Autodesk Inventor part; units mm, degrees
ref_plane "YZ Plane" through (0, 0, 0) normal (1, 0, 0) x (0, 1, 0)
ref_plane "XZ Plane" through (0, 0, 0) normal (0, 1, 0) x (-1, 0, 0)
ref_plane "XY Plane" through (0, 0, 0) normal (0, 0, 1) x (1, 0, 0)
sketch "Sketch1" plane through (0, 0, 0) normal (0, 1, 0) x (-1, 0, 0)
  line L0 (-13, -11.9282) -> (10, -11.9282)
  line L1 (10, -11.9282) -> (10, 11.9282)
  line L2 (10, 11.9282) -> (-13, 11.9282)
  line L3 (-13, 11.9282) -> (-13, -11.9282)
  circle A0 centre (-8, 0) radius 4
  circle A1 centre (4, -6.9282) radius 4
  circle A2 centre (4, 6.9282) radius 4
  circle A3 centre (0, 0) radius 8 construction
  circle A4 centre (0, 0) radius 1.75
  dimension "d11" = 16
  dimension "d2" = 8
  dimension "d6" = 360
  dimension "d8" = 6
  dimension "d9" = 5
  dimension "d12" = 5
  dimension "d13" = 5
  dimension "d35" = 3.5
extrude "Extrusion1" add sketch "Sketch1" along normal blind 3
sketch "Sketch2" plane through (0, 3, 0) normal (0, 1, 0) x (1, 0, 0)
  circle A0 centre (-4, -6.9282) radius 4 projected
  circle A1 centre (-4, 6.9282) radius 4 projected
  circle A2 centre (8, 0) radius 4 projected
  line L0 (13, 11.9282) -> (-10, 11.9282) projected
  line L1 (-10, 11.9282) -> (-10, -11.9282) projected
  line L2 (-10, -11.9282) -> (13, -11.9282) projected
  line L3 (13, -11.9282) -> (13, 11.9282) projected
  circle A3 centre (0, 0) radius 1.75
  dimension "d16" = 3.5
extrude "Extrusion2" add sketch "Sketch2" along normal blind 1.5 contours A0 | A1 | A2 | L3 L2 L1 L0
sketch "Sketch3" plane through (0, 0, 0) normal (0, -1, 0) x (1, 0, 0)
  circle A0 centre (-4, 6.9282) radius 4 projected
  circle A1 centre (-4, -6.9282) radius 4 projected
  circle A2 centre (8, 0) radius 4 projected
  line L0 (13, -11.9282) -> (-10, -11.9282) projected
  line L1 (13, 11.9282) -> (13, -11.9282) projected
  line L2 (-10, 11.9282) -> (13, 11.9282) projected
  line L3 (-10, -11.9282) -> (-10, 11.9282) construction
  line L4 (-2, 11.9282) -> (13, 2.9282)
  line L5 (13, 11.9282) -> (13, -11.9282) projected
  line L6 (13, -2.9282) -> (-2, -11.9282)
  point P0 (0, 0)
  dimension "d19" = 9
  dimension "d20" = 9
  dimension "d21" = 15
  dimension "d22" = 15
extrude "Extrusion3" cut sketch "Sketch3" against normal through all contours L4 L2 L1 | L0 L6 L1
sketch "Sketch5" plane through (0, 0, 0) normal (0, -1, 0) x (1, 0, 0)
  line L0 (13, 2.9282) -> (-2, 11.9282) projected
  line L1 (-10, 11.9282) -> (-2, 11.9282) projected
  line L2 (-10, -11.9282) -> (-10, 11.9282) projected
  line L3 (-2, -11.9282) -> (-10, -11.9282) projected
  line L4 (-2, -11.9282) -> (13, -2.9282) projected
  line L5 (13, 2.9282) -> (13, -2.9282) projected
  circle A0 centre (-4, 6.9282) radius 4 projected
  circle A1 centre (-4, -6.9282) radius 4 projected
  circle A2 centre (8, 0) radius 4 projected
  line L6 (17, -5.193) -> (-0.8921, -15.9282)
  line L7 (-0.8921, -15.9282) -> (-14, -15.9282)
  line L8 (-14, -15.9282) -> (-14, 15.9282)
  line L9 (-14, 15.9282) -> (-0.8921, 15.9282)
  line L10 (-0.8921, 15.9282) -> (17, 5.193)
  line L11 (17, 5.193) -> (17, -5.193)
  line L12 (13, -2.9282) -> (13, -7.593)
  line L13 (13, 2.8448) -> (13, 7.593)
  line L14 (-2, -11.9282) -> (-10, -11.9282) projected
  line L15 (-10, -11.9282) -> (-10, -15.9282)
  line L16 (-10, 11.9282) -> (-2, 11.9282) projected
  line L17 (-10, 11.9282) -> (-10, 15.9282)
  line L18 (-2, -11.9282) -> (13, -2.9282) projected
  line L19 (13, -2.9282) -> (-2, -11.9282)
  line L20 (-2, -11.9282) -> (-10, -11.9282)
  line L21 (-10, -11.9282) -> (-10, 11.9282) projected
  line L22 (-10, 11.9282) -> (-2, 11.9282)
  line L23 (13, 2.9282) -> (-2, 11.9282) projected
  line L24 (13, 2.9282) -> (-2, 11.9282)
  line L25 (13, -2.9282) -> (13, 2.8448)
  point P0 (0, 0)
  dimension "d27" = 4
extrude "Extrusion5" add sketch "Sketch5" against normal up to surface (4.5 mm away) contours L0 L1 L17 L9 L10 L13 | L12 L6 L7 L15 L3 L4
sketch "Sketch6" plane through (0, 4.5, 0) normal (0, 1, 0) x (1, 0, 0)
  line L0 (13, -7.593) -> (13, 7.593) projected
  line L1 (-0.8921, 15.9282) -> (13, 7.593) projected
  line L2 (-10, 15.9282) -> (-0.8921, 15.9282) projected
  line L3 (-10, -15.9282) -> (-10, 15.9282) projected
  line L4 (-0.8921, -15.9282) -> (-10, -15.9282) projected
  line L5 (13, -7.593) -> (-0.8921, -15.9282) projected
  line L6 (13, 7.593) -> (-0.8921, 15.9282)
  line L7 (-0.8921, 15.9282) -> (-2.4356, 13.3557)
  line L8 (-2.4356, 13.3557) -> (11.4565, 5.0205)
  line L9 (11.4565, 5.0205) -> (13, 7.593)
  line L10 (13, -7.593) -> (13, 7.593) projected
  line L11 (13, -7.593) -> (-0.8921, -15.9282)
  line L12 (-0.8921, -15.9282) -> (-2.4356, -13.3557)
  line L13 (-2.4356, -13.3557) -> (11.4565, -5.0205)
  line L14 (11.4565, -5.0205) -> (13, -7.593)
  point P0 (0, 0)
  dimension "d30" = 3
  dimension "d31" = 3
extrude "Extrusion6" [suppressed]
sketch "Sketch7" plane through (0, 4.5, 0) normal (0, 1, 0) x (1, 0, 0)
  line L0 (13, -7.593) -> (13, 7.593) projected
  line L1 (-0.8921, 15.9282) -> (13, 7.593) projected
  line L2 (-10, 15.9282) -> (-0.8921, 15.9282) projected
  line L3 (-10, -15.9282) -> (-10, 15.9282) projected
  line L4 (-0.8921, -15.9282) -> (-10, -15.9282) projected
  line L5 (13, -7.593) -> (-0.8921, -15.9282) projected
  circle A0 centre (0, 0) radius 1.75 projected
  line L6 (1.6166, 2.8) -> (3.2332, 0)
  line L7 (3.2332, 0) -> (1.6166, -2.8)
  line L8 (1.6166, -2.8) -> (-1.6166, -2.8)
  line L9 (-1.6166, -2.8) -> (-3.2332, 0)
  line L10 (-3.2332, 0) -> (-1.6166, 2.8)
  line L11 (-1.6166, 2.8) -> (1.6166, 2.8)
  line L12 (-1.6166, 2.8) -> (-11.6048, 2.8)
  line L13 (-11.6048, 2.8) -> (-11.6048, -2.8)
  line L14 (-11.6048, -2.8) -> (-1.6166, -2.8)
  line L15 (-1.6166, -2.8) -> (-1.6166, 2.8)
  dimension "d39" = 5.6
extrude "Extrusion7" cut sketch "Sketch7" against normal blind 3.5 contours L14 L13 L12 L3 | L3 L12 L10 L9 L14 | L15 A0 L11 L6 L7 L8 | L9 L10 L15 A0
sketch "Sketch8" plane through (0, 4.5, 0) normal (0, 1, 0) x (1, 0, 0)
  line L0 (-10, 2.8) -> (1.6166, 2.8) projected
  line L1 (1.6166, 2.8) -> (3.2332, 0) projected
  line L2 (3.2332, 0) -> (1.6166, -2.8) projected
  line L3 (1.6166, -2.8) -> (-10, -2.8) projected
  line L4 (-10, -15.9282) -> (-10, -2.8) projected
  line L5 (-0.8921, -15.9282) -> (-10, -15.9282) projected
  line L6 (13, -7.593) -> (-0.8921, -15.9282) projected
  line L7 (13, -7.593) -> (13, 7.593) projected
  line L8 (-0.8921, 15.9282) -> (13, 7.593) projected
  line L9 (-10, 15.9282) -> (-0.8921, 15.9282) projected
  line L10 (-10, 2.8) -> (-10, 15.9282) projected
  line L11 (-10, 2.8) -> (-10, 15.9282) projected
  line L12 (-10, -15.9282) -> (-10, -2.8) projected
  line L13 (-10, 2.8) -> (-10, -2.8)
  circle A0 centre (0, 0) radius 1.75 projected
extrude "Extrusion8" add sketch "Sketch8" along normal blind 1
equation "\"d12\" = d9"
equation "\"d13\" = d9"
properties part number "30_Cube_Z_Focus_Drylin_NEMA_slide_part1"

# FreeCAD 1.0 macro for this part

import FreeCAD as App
import Part
import Sketcher

V = App.Vector
Q = App.Units.Quantity

doc = App.newDocument("Part")
body = doc.addObject("PartDesign::Body", "Body")

sketch1 = body.newObject("Sketcher::SketchObject", "Sketch")
sketch1.AttachmentSupport = (doc.getObject("XZ_Plane"), [""])
sketch1.MapMode = "FlatFace"
sketch1.addGeometry([
    Part.LineSegment(V(13, 11.9, 0), V(13, -11.9, 0)),
    Part.LineSegment(V(13, -11.9, 0), V(-10, -11.9, 0)),
    Part.LineSegment(V(-10, -11.9, 0), V(-10, 11.9, 0)),
    Part.LineSegment(V(-10, 11.9, 0), V(13, 11.9, 0)),
    Part.Circle(V(-4, -6.9, 0), V(0, 0, 1), 4),
    Part.Circle(V(8, 0, 0), V(0, 0, 1), 4),
    Part.Circle(V(0, 0, 0), V(0, 0, 1), 1.8),
    Part.Circle(V(-4, 6.9, 0), V(0, 0, 1), 4),
], False)
sketch1.addConstraint([
    Sketcher.Constraint("Coincident", 0, 2, 1, 1),
    Sketcher.Constraint("Coincident", 1, 2, 2, 1),
    Sketcher.Constraint("Coincident", 2, 2, 3, 1),
    Sketcher.Constraint("Coincident", 3, 2, 0, 1),
    Sketcher.Constraint("Vertical", 0),
    Sketcher.Constraint("Horizontal", 1),
    Sketcher.Constraint("Vertical", 2),
    Sketcher.Constraint("Horizontal", 3),
    Sketcher.Constraint("Coincident", 6, 3, -1, 1),
    Sketcher.Constraint("Equal", 4, 5),
    Sketcher.Constraint("Equal", 5, 7),
    Sketcher.Constraint("Symmetric", 4, 3, 7, 3, -1),
    Sketcher.Constraint("PointOnObject", 5, 3, -1),
    Sketcher.Constraint("Diameter", 4, 8.0),
    Sketcher.Constraint("Diameter", 6, 3.5),
    Sketcher.Constraint("DistanceX", -1, 1, 5, 3, 8.0),
    Sketcher.Constraint("DistanceX", 5, 3, 0, 2, 5.0),
    Sketcher.Constraint("DistanceY", 0, 2, 4, 3, 5.0),
    Sketcher.Constraint("DistanceX", 1, 2, 4, 3, 6.0),
    Sketcher.Constraint("DistanceY", 7, 3, 2, 2, 5.0),
    Sketcher.Constraint("DistanceX", 1, 2, 1, 1, 23.0),
    Sketcher.Constraint("DistanceY", 0, 2, 0, 1, 23.8564),
])
pad1 = body.newObject("PartDesign::Pad", "Pad")
pad1.Profile = sketch1
pad1.Length = 3
pad1.Reversed = True

sketch2 = body.newObject("Sketcher::SketchObject", "Sketch001")
sketch2.AttachmentSupport = (doc.getObject("XZ_Plane"), [""])
sketch2.MapMode = "FlatFace"
sketch2.AttachmentOffset = App.Placement(V(0, 0, -3), App.Rotation())
sketch2.addGeometry([
    Part.LineSegment(V(13, 11.9, 0), V(13, -11.9, 0)),
    Part.LineSegment(V(13, -11.9, 0), V(-10, -11.9, 0)),
    Part.LineSegment(V(-10, -11.9, 0), V(-10, 11.9, 0)),
    Part.LineSegment(V(-10, 11.9, 0), V(13, 11.9, 0)),
    Part.Circle(V(0, 0, 0), V(0, 0, 1), 1.8),
], False)
sketch2.addConstraint([
    Sketcher.Constraint("Coincident", 0, 2, 1, 1),
    Sketcher.Constraint("Coincident", 1, 2, 2, 1),
    Sketcher.Constraint("Coincident", 2, 2, 3, 1),
    Sketcher.Constraint("Coincident", 3, 2, 0, 1),
    Sketcher.Constraint("Vertical", 0),
    Sketcher.Constraint("Horizontal", 1),
    Sketcher.Constraint("Vertical", 2),
    Sketcher.Constraint("Horizontal", 3),
    Sketcher.Constraint("Coincident", 4, 3, -1, 1),
    Sketcher.Constraint("Diameter", 4, 3.5),
    Sketcher.Constraint("DistanceX", 1, 2, 1, 1, 23.0),
    Sketcher.Constraint("DistanceX", -1, 1, 0, 2, 13.0),
    Sketcher.Constraint("DistanceY", 0, 2, 0, 1, 23.8564),
    Sketcher.Constraint("DistanceY", 0, 2, -1, 1, 11.9282),
])
pad2 = body.newObject("PartDesign::Pad", "Pad001")
pad2.Profile = sketch2
pad2.Length = 1.5
pad2.Reversed = True

sketch3 = body.newObject("Sketcher::SketchObject", "Sketch002")
sketch3.AttachmentSupport = (doc.getObject("XZ_Plane"), [""])
sketch3.MapMode = "FlatFace"
sketch3.addGeometry([
    Part.LineSegment(V(-2, 12, 0), V(13, 3, 0)),
    Part.LineSegment(V(13, 3, 0), V(13, 12, 0)),
    Part.LineSegment(V(13, 12, 0), V(-2, 12, 0)),
    Part.LineSegment(V(-2, -12, 0), V(13, -12, 0)),
    Part.LineSegment(V(13, -12, 0), V(13, -3, 0)),
    Part.LineSegment(V(13, -3, 0), V(-2, -12, 0)),
], False)
sketch3.addConstraint([
    Sketcher.Constraint("Coincident", 0, 2, 1, 1),
    Sketcher.Constraint("Coincident", 1, 2, 2, 1),
    Sketcher.Constraint("Coincident", 2, 2, 0, 1),
    Sketcher.Constraint("Coincident", 3, 2, 4, 1),
    Sketcher.Constraint("Coincident", 4, 2, 5, 1),
    Sketcher.Constraint("Coincident", 5, 2, 3, 1),
    Sketcher.Constraint("Vertical", 1),
    Sketcher.Constraint("Horizontal", 2),
    Sketcher.Constraint("Horizontal", 3),
    Sketcher.Constraint("Vertical", 4),
    Sketcher.Constraint("Symmetric", 1, 2, 3, 2, -1),
    Sketcher.Constraint("Vertical", 2, 2, 5, 2),
    Sketcher.Constraint("Equal", 1, 4),
    Sketcher.Constraint("DistanceX", 2, 2, 2, 1, 15.0),
    Sketcher.Constraint("DistanceY", 1, 1, 1, 2, 9.0),
    Sketcher.Constraint("DistanceX", -1, 1, 0, 2, 13.0),
    Sketcher.Constraint("DistanceY", -1, 1, 0, 2, 2.9282),
])
pocket1 = body.newObject("PartDesign::Pocket", "Pocket")
pocket1.Profile = sketch3
pocket1.Type = "ThroughAll"

sketch4 = body.newObject("Sketcher::SketchObject", "Sketch003")
sketch4.AttachmentSupport = (doc.getObject("XZ_Plane"), [""])
sketch4.MapMode = "FlatFace"
sketch4.addGeometry([
    Part.LineSegment(V(-2, 11.9, 0), V(13, 2.9, 0)),
    Part.LineSegment(V(13, 2.9, 0), V(13, 7.6, 0)),
    Part.LineSegment(V(13, 7.6, 0), V(-0.9, 15.9, 0)),
    Part.LineSegment(V(-0.9, 15.9, 0), V(-10, 15.9, 0)),
    Part.LineSegment(V(-10, 15.9, 0), V(-10, 11.9, 0)),
    Part.LineSegment(V(-10, 11.9, 0), V(-2, 11.9, 0)),
    Part.LineSegment(V(13, -7.6, 0), V(13, -2.9, 0)),
    Part.LineSegment(V(13, -2.9, 0), V(-2, -11.9, 0)),
    Part.LineSegment(V(-2, -11.9, 0), V(-10, -11.9, 0)),
    Part.LineSegment(V(-10, -11.9, 0), V(-10, -15.9, 0)),
    Part.LineSegment(V(-10, -15.9, 0), V(-0.9, -15.9, 0)),
    Part.LineSegment(V(-0.9, -15.9, 0), V(13, -7.6, 0)),
], False)
sketch4.addConstraint([
    Sketcher.Constraint("Coincident", 0, 2, 1, 1),
    Sketcher.Constraint("Coincident", 1, 2, 2, 1),
    Sketcher.Constraint("Coincident", 2, 2, 3, 1),
    Sketcher.Constraint("Coincident", 3, 2, 4, 1),
    Sketcher.Constraint("Coincident", 4, 2, 5, 1),
    Sketcher.Constraint("Coincident", 5, 2, 0, 1),
    Sketcher.Constraint("Coincident", 6, 2, 7, 1),
    Sketcher.Constraint("Coincident", 7, 2, 8, 1),
    Sketcher.Constraint("Coincident", 8, 2, 9, 1),
    Sketcher.Constraint("Coincident", 9, 2, 10, 1),
    Sketcher.Constraint("Coincident", 10, 2, 11, 1),
    Sketcher.Constraint("Coincident", 11, 2, 6, 1),
    Sketcher.Constraint("Vertical", 1),
    Sketcher.Constraint("Horizontal", 3),
    Sketcher.Constraint("Vertical", 4),
    Sketcher.Constraint("Horizontal", 5),
    Sketcher.Constraint("Vertical", 6),
    Sketcher.Constraint("Horizontal", 8),
    Sketcher.Constraint("Vertical", 9),
    Sketcher.Constraint("Horizontal", 10),
    Sketcher.Constraint("Symmetric", 0, 2, 6, 2, -1),
    Sketcher.Constraint("Symmetric", 5, 2, 7, 2, -1),
    Sketcher.Constraint("Symmetric", 3, 2, 9, 2, -1),
    Sketcher.Constraint("Parallel", 0, 2),
    Sketcher.Constraint("Parallel", 7, 11),
    Sketcher.Constraint("Vertical", 2, 2, 10, 2),
    Sketcher.Constraint("DistanceY", 4, 2, 4, 1, 4.0),
    Sketcher.Constraint("DistanceX", 5, 1, 5, 2, 8.0),
    Sketcher.Constraint("DistanceX", -1, 1, 0, 2, 13.0),
    Sketcher.Constraint("DistanceX", 3, 2, -1, 1, 10.0),
    Sketcher.Constraint("DistanceY", 0, 2, 2, 2, 13.0),
    Sketcher.Constraint("DistanceX", 3, 2, 3, 1, 9.108),
    Sketcher.Constraint("DistanceY", -1, 1, 1, 2, 7.593),
])
pad3 = body.newObject("PartDesign::Pad", "Pad002")
pad3.Profile = sketch4
pad3.Length = 4.5
pad3.Reversed = True

sketch5 = body.newObject("Sketcher::SketchObject", "Sketch004")
sketch5.AttachmentSupport = (doc.getObject("XZ_Plane"), [""])
sketch5.MapMode = "FlatFace"
sketch5.AttachmentOffset = App.Placement(V(0, 0, -4.5), App.Rotation())
sketch5.addGeometry([
    Part.LineSegment(V(-11.6, 2.8, 0), V(1.6, 2.8, 0)),
    Part.LineSegment(V(1.6, 2.8, 0), V(3.2, 0, 0)),
    Part.LineSegment(V(3.2, 0, 0), V(1.6, -2.8, 0)),
    Part.LineSegment(V(1.6, -2.8, 0), V(-11.6, -2.8, 0)),
    Part.LineSegment(V(-11.6, -2.8, 0), V(-11.6, 2.8, 0)),
    Part.Circle(V(0, 0, 0), V(0, 0, 1), 1.8),
], False)
sketch5.addConstraint([
    Sketcher.Constraint("Coincident", 0, 2, 1, 1),
    Sketcher.Constraint("Coincident", 1, 2, 2, 1),
    Sketcher.Constraint("Coincident", 2, 2, 3, 1),
    Sketcher.Constraint("Coincident", 3, 2, 4, 1),
    Sketcher.Constraint("Coincident", 4, 2, 0, 1),
    Sketcher.Constraint("Horizontal", 0),
    Sketcher.Constraint("Horizontal", 3),
    Sketcher.Constraint("Vertical", 4),
    Sketcher.Constraint("Coincident", 5, 3, -1, 1),
    Sketcher.Constraint("Symmetric", 0, 2, 2, 2, -1),
    Sketcher.Constraint("PointOnObject", 1, 2, -1),
    Sketcher.Constraint("DistanceY", 4, 1, 4, 2, 5.6),
    Sketcher.Constraint("Diameter", 5, 3.5),
    Sketcher.Constraint("Angle", 1, Q("-59.9997 deg")),
    Sketcher.Constraint("DistanceX", 0, 1, 0, 2, 13.2214),
    Sketcher.Constraint("DistanceX", -1, 1, 0, 2, 1.6166),
])
pocket2 = body.newObject("PartDesign::Pocket", "Pocket001")
pocket2.Profile = sketch5
pocket2.Length = 3.5
pocket2.Reversed = True

sketch6 = body.newObject("Sketcher::SketchObject", "Sketch005")
sketch6.AttachmentSupport = (doc.getObject("XZ_Plane"), [""])
sketch6.MapMode = "FlatFace"
sketch6.AttachmentOffset = App.Placement(V(0, 0, -4.5), App.Rotation())
sketch6.addGeometry([
    Part.LineSegment(V(-10, -15.9, 0), V(-10, 15.9, 0)),
    Part.LineSegment(V(-10, 15.9, 0), V(-0.9, 15.9, 0)),
    Part.LineSegment(V(-0.9, 15.9, 0), V(13, 7.6, 0)),
    Part.LineSegment(V(13, 7.6, 0), V(13, -7.6, 0)),
    Part.LineSegment(V(13, -7.6, 0), V(-0.9, -15.9, 0)),
    Part.LineSegment(V(-0.9, -15.9, 0), V(-10, -15.9, 0)),
    Part.Circle(V(0, 0, 0), V(0, 0, 1), 1.8),
], False)
sketch6.addConstraint([
    Sketcher.Constraint("Coincident", 0, 2, 1, 1),
    Sketcher.Constraint("Coincident", 1, 2, 2, 1),
    Sketcher.Constraint("Coincident", 2, 2, 3, 1),
    Sketcher.Constraint("Coincident", 3, 2, 4, 1),
    Sketcher.Constraint("Coincident", 4, 2, 5, 1),
    Sketcher.Constraint("Coincident", 5, 2, 0, 1),
    Sketcher.Constraint("Vertical", 0),
    Sketcher.Constraint("Horizontal", 1),
    Sketcher.Constraint("Vertical", 3),
    Sketcher.Constraint("Horizontal", 5),
    Sketcher.Constraint("Coincident", 6, 3, -1, 1),
    Sketcher.Constraint("Symmetric", 1, 2, 4, 2, -1),
    Sketcher.Constraint("Equal", 2, 4),
    Sketcher.Constraint("Diameter", 6, 3.5),
    Sketcher.Constraint("DistanceX", 0, 2, -1, 1, 10.0),
    Sketcher.Constraint("DistanceX", -1, 1, 2, 2, 13.0),
    Sketcher.Constraint("DistanceX", 1, 1, 1, 2, 9.108),
    Sketcher.Constraint("DistanceY", 3, 2, 3, 1, 15.186),
    Sketcher.Constraint("DistanceY", 0, 1, 0, 2, 31.8564),
])
pad4 = body.newObject("PartDesign::Pad", "Pad003")
pad4.Profile = sketch6
pad4.Length = 1
pad4.Reversed = True

doc.recompute()
